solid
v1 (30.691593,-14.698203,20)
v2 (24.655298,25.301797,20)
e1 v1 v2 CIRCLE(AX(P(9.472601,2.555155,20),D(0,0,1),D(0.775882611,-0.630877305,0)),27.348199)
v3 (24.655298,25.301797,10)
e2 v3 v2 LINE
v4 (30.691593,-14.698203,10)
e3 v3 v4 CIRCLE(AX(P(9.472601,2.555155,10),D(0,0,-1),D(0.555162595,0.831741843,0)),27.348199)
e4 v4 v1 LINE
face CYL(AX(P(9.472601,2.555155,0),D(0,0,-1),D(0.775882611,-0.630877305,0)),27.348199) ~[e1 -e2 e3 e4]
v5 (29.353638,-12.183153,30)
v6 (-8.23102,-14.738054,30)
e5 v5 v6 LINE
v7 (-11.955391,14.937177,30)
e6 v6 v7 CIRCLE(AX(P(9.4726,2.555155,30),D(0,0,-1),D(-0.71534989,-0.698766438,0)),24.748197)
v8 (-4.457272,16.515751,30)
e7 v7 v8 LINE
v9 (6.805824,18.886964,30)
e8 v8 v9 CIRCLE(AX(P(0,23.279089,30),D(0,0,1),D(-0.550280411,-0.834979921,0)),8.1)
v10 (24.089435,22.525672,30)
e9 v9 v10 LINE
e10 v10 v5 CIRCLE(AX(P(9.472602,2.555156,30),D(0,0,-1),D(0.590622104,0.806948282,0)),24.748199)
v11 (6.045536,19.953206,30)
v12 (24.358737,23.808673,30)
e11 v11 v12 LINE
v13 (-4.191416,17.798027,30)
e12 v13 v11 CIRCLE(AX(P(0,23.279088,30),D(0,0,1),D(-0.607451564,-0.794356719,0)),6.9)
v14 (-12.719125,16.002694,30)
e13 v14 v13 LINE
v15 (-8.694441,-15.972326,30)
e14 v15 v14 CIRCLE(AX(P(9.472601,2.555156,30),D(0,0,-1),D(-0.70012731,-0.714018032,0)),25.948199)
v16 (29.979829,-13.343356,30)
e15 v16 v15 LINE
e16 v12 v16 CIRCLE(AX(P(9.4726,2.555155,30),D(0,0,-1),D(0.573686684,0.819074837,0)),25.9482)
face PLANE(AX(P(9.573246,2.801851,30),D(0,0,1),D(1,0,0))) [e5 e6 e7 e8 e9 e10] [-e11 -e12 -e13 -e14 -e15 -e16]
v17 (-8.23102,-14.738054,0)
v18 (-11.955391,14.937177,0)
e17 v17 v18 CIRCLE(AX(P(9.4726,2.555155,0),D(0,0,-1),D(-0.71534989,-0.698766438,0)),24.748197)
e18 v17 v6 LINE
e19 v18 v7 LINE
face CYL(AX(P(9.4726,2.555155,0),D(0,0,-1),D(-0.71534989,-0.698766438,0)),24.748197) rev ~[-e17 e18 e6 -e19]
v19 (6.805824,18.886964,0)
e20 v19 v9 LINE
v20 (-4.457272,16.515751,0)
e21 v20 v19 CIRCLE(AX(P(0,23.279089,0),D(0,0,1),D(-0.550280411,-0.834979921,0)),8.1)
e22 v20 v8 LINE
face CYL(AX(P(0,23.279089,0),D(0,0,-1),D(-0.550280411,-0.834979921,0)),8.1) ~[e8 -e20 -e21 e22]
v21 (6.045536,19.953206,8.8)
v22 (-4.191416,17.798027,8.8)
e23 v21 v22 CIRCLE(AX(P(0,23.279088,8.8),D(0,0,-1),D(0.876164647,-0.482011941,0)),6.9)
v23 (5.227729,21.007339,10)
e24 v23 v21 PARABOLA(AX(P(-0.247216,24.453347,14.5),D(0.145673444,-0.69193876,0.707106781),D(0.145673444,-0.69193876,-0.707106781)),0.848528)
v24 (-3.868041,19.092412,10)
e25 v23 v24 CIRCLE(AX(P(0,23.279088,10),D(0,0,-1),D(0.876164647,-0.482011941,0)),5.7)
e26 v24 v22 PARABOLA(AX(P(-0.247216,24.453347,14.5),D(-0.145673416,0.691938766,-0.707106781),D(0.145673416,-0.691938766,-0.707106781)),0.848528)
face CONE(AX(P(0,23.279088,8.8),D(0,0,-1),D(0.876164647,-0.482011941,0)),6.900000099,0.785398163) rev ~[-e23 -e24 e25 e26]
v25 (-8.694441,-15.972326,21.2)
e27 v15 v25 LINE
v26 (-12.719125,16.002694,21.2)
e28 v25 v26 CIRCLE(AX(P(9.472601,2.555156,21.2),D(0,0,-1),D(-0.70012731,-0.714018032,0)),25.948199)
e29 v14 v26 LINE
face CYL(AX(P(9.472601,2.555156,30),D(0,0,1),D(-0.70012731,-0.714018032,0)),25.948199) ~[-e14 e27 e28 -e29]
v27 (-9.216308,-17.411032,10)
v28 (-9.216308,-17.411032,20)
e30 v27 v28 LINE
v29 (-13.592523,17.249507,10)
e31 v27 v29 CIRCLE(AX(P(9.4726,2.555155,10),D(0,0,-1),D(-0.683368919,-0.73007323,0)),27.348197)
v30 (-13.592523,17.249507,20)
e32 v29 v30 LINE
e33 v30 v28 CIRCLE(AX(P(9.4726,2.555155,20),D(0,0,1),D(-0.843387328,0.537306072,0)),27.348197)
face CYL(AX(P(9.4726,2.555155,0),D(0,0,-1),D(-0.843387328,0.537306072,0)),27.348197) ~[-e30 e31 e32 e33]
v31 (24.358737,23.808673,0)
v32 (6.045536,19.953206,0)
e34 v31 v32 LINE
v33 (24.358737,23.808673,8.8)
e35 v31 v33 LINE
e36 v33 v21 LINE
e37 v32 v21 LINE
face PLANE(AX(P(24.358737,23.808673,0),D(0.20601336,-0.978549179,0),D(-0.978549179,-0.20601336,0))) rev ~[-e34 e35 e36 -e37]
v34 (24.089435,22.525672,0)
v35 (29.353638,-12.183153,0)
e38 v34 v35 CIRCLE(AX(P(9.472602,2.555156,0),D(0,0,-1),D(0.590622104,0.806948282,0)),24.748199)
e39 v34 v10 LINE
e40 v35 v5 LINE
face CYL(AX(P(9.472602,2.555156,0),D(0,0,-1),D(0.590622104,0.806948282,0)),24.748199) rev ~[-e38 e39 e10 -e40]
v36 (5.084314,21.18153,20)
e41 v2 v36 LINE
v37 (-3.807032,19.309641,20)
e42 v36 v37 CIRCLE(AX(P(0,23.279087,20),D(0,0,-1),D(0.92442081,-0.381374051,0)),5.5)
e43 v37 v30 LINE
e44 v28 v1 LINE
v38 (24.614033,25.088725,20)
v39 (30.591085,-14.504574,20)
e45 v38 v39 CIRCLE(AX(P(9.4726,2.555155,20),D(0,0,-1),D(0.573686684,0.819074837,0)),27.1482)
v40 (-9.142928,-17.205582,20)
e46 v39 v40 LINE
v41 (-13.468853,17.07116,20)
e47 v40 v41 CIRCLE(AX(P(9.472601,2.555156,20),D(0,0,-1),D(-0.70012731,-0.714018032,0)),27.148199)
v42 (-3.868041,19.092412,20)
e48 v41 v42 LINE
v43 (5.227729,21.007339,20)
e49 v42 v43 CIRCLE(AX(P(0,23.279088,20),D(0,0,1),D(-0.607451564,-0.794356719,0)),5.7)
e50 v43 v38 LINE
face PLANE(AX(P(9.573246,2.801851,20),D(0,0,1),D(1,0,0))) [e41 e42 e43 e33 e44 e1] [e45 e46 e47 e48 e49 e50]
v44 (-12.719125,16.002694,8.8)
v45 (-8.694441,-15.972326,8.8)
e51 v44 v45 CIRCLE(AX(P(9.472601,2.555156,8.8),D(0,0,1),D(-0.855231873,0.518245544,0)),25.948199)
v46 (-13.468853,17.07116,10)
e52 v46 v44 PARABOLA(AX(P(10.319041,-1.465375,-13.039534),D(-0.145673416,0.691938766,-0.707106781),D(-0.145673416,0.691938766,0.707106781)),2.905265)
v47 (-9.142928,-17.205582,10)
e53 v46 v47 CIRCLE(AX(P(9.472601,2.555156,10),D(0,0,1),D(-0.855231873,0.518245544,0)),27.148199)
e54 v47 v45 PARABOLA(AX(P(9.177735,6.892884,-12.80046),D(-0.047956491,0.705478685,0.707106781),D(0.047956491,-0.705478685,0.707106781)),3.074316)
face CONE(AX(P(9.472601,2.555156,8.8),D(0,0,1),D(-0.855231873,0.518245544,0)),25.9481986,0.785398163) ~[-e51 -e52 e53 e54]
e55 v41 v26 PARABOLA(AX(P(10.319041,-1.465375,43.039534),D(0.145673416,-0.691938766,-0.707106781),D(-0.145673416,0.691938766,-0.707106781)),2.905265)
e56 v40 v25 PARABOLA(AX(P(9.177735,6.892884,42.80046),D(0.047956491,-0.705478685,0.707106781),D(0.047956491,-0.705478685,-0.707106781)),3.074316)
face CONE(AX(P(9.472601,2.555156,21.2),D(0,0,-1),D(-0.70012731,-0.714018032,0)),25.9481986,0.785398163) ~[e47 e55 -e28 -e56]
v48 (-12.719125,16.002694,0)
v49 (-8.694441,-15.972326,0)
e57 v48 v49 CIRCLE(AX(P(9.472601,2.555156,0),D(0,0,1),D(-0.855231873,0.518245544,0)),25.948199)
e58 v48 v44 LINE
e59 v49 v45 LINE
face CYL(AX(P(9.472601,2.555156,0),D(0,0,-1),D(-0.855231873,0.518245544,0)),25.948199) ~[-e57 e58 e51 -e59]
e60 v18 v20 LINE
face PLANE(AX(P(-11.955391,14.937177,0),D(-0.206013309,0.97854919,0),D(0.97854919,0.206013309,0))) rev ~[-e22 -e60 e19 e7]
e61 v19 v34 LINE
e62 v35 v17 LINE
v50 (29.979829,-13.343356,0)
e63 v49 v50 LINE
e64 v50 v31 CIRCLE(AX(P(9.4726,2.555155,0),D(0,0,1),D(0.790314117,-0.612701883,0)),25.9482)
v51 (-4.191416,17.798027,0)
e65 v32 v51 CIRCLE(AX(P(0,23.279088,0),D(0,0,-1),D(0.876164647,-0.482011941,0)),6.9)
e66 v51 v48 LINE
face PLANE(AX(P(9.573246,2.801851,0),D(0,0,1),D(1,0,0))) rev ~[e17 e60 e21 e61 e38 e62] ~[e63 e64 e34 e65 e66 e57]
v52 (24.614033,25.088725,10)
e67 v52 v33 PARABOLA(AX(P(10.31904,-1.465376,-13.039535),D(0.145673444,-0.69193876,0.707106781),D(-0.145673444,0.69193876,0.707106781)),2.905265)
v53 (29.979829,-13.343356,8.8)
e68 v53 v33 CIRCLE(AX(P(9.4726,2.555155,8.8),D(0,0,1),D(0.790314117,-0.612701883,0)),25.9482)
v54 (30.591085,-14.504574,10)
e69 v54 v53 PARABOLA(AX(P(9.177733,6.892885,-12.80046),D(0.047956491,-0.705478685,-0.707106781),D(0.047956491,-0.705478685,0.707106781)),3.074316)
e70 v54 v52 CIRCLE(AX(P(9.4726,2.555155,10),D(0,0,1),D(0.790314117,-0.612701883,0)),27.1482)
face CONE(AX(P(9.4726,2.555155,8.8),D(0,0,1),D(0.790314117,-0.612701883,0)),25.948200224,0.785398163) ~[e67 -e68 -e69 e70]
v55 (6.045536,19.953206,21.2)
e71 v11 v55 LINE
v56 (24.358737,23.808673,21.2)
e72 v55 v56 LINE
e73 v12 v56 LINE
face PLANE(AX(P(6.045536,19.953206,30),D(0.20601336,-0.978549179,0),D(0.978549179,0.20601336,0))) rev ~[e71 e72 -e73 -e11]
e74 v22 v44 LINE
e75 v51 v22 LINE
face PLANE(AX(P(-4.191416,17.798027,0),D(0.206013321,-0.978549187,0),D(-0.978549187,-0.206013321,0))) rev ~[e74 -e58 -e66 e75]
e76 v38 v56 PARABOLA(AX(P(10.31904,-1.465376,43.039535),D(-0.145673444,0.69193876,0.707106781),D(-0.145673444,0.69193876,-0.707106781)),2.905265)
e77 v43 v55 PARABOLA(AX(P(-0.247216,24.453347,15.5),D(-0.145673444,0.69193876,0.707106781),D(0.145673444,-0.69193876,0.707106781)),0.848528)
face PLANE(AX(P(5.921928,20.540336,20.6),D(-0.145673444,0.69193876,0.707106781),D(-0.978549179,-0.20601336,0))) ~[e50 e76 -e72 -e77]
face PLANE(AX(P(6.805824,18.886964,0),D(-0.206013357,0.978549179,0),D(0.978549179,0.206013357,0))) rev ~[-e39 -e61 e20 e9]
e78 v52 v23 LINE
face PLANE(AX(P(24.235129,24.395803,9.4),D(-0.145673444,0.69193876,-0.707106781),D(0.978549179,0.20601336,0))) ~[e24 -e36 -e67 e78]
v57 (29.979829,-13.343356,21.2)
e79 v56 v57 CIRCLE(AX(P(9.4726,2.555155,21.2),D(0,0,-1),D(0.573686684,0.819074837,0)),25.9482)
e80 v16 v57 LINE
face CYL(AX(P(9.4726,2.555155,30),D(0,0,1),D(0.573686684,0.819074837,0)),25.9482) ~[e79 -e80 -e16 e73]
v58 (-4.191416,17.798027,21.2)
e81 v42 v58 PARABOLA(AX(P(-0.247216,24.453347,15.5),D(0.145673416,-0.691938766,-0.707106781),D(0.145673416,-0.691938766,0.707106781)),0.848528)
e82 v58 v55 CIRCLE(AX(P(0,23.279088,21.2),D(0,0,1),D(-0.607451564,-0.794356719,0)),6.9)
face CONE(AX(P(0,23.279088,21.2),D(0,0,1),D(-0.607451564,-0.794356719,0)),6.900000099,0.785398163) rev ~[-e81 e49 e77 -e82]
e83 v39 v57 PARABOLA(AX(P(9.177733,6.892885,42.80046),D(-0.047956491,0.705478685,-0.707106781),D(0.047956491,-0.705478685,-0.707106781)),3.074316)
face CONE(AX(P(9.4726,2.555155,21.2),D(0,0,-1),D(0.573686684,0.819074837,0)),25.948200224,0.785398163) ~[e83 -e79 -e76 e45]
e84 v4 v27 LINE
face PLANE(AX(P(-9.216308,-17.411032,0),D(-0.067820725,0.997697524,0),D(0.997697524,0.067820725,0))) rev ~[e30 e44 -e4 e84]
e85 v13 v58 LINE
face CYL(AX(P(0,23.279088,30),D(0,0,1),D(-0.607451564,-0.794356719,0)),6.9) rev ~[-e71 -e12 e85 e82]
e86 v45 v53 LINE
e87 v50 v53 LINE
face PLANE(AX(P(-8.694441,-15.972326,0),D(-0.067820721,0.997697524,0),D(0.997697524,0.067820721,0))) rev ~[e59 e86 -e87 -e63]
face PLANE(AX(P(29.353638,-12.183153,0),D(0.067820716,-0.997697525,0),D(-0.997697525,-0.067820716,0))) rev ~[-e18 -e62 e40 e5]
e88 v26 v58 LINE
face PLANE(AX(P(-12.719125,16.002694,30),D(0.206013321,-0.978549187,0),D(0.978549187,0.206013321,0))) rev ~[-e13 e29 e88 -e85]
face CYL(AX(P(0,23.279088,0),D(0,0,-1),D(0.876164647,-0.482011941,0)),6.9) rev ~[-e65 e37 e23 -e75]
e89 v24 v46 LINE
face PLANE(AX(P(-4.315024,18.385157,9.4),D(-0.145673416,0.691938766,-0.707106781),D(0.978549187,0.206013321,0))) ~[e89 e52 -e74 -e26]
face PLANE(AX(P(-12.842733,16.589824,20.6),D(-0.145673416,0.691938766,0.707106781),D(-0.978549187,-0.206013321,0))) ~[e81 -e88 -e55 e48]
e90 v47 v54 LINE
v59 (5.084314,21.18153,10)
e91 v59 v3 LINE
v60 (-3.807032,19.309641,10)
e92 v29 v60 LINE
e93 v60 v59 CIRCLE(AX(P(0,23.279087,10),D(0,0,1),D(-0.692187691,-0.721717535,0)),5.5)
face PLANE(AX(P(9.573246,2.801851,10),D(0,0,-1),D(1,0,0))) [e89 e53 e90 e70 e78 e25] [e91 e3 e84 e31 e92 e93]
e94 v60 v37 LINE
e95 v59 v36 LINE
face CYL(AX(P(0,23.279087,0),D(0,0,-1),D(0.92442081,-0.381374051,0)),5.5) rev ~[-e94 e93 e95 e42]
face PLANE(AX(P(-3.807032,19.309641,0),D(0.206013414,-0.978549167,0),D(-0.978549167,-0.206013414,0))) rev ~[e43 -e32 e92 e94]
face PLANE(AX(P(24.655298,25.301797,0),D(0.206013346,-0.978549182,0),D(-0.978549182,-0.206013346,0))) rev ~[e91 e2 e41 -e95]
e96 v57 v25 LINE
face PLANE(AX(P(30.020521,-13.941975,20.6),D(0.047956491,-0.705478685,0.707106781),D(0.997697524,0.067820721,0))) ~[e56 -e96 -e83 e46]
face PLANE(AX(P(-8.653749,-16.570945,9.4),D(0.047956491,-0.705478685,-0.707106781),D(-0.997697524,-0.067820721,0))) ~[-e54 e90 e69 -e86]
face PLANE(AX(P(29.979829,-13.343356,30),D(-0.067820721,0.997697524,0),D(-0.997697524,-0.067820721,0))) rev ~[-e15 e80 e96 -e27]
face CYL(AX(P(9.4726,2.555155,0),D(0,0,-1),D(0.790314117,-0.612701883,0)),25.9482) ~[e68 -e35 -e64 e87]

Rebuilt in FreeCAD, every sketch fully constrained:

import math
import FreeCAD as App
import Part
import Sketcher


def edges_at(feature, points):
    """Names of the edges that pass closest to the given points."""
    edges = feature.Shape.Edges
    near = lambda p: min(range(len(edges)), key=lambda i: edges[i].distToShape(Part.Vertex(*p))[0])
    return sorted({f"Edge{near(p) + 1}" for p in points})

doc = App.newDocument("Part")
body = doc.addObject("PartDesign::Body", "Body")

# Sketch on XY plane
sketch1 = doc.addObject("Sketcher::SketchObject", "Sketch")
body.addObject(sketch1)
sketch1.AttachmentSupport = (doc.XY_Plane, [""])
sketch1.MapMode = "FlatFace"
sketch1.addGeometry([
    Part.LineSegment(App.Vector(-9, -17, 0), App.Vector(31, -15, 0)),  # 0
    Part.ArcOfCircle(Part.Circle(App.Vector(9, 3, 0), App.Vector(0, 0, 1), 27), math.radians(-39), math.radians(56)),  # 1
    Part.LineSegment(App.Vector(25, 25, 0), App.Vector(5, 21, 0)),  # 2
    Part.ArcOfCircle(Part.Circle(App.Vector(0, 23, 0), App.Vector(0, 0, 1), 5), math.radians(-134), math.radians(-22)),  # 3
    Part.LineSegment(App.Vector(-4, 19, 0), App.Vector(-14, 17, 0)),  # 4
    Part.ArcOfCircle(Part.Circle(App.Vector(9, 3, 0), App.Vector(0, 0, 1), 27), math.radians(147), math.radians(227)),  # 5
    Part.LineSegment(App.Vector(29, -12, 0), App.Vector(-8, -15, 0)),  # 6
    Part.ArcOfCircle(Part.Circle(App.Vector(9, 3, 0), App.Vector(0, 0, 1), 25), math.radians(150), math.radians(224)),  # 7
    Part.LineSegment(App.Vector(-12, 15, 0), App.Vector(-4, 17, 0)),  # 8
    Part.ArcOfCircle(Part.Circle(App.Vector(0, 23, 0), App.Vector(0, 0, 1), 8), math.radians(-123), math.radians(-33)),  # 9
    Part.LineSegment(App.Vector(7, 19, 0), App.Vector(24, 23, 0)),  # 10
    Part.ArcOfCircle(Part.Circle(App.Vector(9, 3, 0), App.Vector(0, 0, 1), 25), math.radians(-37), math.radians(54)),  # 11
], False)
sketch1.addConstraint([
    Sketcher.Constraint("Coincident", 0, 2, 1, 1),
    Sketcher.Constraint("Coincident", 1, 2, 2, 1),
    Sketcher.Constraint("Coincident", 2, 2, 3, 2),
    Sketcher.Constraint("Coincident", 3, 1, 4, 1),
    Sketcher.Constraint("Coincident", 4, 2, 5, 1),
    Sketcher.Constraint("Coincident", 5, 2, 0, 1),
    Sketcher.Constraint("Coincident", 6, 2, 7, 2),
    Sketcher.Constraint("Coincident", 7, 1, 8, 1),
    Sketcher.Constraint("Coincident", 8, 2, 9, 1),
    Sketcher.Constraint("Coincident", 9, 2, 10, 1),
    Sketcher.Constraint("Coincident", 10, 2, 11, 2),
    Sketcher.Constraint("Coincident", 11, 1, 6, 1),
    Sketcher.Constraint("Coincident", 5, 3, 1, 3),
    Sketcher.Constraint("Coincident", 7, 3, 1, 3),
    Sketcher.Constraint("Coincident", 9, 3, 3, 3),
    Sketcher.Constraint("Coincident", 11, 3, 1, 3),
    Sketcher.Constraint("Equal", 7, 11),
    Sketcher.Constraint("PointOnObject", 3, 3, -2),
    Sketcher.Constraint("Parallel", 2, 4),
    Sketcher.Constraint("Parallel", 0, 6),
    Sketcher.Constraint("Parallel", 4, 8),
    Sketcher.Constraint("Parallel", 8, 10),
    Sketcher.Constraint("Radius", 3, 5.5),
    Sketcher.Constraint("Radius", 9, 8.1),
    Sketcher.Constraint("Distance", 0, 40.0),
    Sketcher.Constraint("Distance", 2, 20.0),
    Sketcher.Constraint("Distance", 4, 9.999999),
    Sketcher.Constraint("Radius", 1, 27.348199),
    Sketcher.Constraint("Radius", 11, 24.748199),
    Sketcher.Constraint("Radius", 5, 27.348197),
    Sketcher.Constraint("DistanceX", -1, 1, 1, 3, 9.472601),
    Sketcher.Constraint("DistanceX", -1, 1, 1, 2, 24.655298),
    Sketcher.Constraint("DistanceY", -1, 1, 9, 3, 23.279089),
    Sketcher.Constraint("DistanceY", -1, 1, 2, 2, 21.18153),
    Sketcher.Constraint("DistanceX", 5, 2, -1, 1, 9.216308),
    Sketcher.Constraint("DistanceX", 6, 2, -1, 1, 8.23102),
    Sketcher.Constraint("DistanceX", 7, 1, -1, 1, 11.955391),
    Sketcher.Constraint("DistanceY", -1, 1, 10, 2, 22.525672),
])
pad1 = doc.addObject("PartDesign::Pad", "Pad")
body.addObject(pad1)
pad1.Profile = sketch1
pad1.Length = 30

# Sketch on XY plane
sketch2 = doc.addObject("Sketcher::SketchObject", "Sketch001")
body.addObject(sketch2)
sketch2.AttachmentSupport = (doc.XY_Plane, [""])
sketch2.MapMode = "FlatFace"
sketch2.addGeometry([
    Part.LineSegment(App.Vector(31, -15, 0), App.Vector(-9, -17, 0)),  # 0
    Part.ArcOfCircle(Part.Circle(App.Vector(9, 3, 0), App.Vector(0, 0, 1), 27), math.radians(147), math.radians(227)),  # 1
    Part.LineSegment(App.Vector(-14, 17, 0), App.Vector(-4, 19, 0)),  # 2
    Part.ArcOfCircle(Part.Circle(App.Vector(0, 23, 0), App.Vector(0, 0, 1), 5), math.radians(-134), math.radians(-22)),  # 3
    Part.LineSegment(App.Vector(5, 21, 0), App.Vector(25, 25, 0)),  # 4
    Part.ArcOfCircle(Part.Circle(App.Vector(9, 3, 0), App.Vector(0, 0, 1), 27), math.radians(-39), math.radians(56)),  # 5
    Part.LineSegment(App.Vector(24, 24, 0), App.Vector(6, 20, 0)),  # 6
    Part.ArcOfCircle(Part.Circle(App.Vector(0, 23, 0), App.Vector(0, 0, 1), 7), math.radians(-127), math.radians(-29)),  # 7
    Part.LineSegment(App.Vector(-4, 18, 0), App.Vector(-13, 16, 0)),  # 8
    Part.ArcOfCircle(Part.Circle(App.Vector(9, 3, 0), App.Vector(0, 0, 1), 26), math.radians(149), math.radians(226)),  # 9
    Part.LineSegment(App.Vector(-9, -16, 0), App.Vector(30, -13, 0)),  # 10
    Part.ArcOfCircle(Part.Circle(App.Vector(9, 3, 0), App.Vector(0, 0, 1), 26), math.radians(-38), math.radians(55)),  # 11
], False)
sketch2.addConstraint([
    Sketcher.Constraint("Coincident", 0, 2, 1, 2),
    Sketcher.Constraint("Coincident", 1, 1, 2, 1),
    Sketcher.Constraint("Coincident", 2, 2, 3, 1),
    Sketcher.Constraint("Coincident", 3, 2, 4, 1),
    Sketcher.Constraint("Coincident", 4, 2, 5, 2),
    Sketcher.Constraint("Coincident", 5, 1, 0, 1),
    Sketcher.Constraint("Coincident", 6, 2, 7, 2),
    Sketcher.Constraint("Coincident", 7, 1, 8, 1),
    Sketcher.Constraint("Coincident", 8, 2, 9, 1),
    Sketcher.Constraint("Coincident", 9, 2, 10, 1),
    Sketcher.Constraint("Coincident", 10, 2, 11, 1),
    Sketcher.Constraint("Coincident", 11, 2, 6, 1),
    Sketcher.Constraint("Coincident", 5, 3, 1, 3),
    Sketcher.Constraint("Coincident", 7, 3, 3, 3),
    Sketcher.Constraint("Coincident", 9, 3, 1, 3),
    Sketcher.Constraint("Coincident", 11, 3, 1, 3),
    Sketcher.Constraint("Equal", 9, 11),
    Sketcher.Constraint("PointOnObject", 3, 3, -2),
    Sketcher.Constraint("Parallel", 2, 4),
    Sketcher.Constraint("Parallel", 4, 6),
    Sketcher.Constraint("Parallel", 6, 8),
    Sketcher.Constraint("Parallel", 0, 10),
    Sketcher.Constraint("Radius", 3, 5.5),
    Sketcher.Constraint("Radius", 7, 6.9),
    Sketcher.Constraint("Distance", 0, 40.0),
    Sketcher.Constraint("Distance", 2, 9.999999),
    Sketcher.Constraint("Distance", 4, 20.0),
    Sketcher.Constraint("Radius", 5, 27.348199),
    Sketcher.Constraint("Radius", 9, 25.948199),
    Sketcher.Constraint("Radius", 1, 27.348197),
    Sketcher.Constraint("DistanceX", -1, 1, 1, 3, 9.4726),
    Sketcher.Constraint("DistanceX", 3, 3, 4, 2, 24.655298),
    Sketcher.Constraint("DistanceX", 0, 2, 5, 1, 39.907901),
    Sketcher.Constraint("DistanceX", 1, 1, 8, 2, 0.873398),
    Sketcher.Constraint("DistanceX", 6, 2, 11, 2, 18.313201),
    Sketcher.Constraint("DistanceY", -1, 1, 7, 3, 23.279088),
    Sketcher.Constraint("DistanceY", 0, 2, -1, 1, 17.411032),
    Sketcher.Constraint("DistanceX", 9, 2, -1, 1, 8.694441),
])
pocket1 = doc.addObject("PartDesign::Pocket", "Pocket")
body.addObject(pocket1)
pocket1.Profile = sketch2
pocket1.Length = 10
pocket1.Reversed = True

# Sketch on XY plane
sketch3 = doc.addObject("Sketcher::SketchObject", "Sketch002")
body.addObject(sketch3)
sketch3.AttachmentSupport = (doc.XY_Plane, [""])
sketch3.MapMode = "FlatFace"
sketch3.AttachmentOffset = App.Placement(App.Vector(0, 0, 30), App.Rotation())
sketch3.addGeometry([
    Part.LineSegment(App.Vector(-4, 19, 0), App.Vector(-14, 17, 0)),  # 0
    Part.ArcOfCircle(Part.Circle(App.Vector(9, 3, 0), App.Vector(0, 0, 1), 27), math.radians(147), math.radians(227)),  # 1
    Part.LineSegment(App.Vector(-9, -17, 0), App.Vector(31, -15, 0)),  # 2
    Part.ArcOfCircle(Part.Circle(App.Vector(9, 3, 0), App.Vector(0, 0, 1), 27), math.radians(-39), math.radians(56)),  # 3
    Part.LineSegment(App.Vector(25, 25, 0), App.Vector(5, 21, 0)),  # 4
    Part.ArcOfCircle(Part.Circle(App.Vector(0, 23, 0), App.Vector(0, 0, 1), 5), math.radians(-134), math.radians(-22)),  # 5
    Part.LineSegment(App.Vector(30, -13, 0), App.Vector(-9, -16, 0)),  # 6
    Part.ArcOfCircle(Part.Circle(App.Vector(9, 3, 0), App.Vector(0, 0, 1), 26), math.radians(149), math.radians(226)),  # 7
    Part.LineSegment(App.Vector(-13, 16, 0), App.Vector(-4, 18, 0)),  # 8
    Part.ArcOfCircle(Part.Circle(App.Vector(0, 23, 0), App.Vector(0, 0, 1), 7), math.radians(-127), math.radians(-29)),  # 9
    Part.LineSegment(App.Vector(6, 20, 0), App.Vector(24, 24, 0)),  # 10
    Part.ArcOfCircle(Part.Circle(App.Vector(9, 3, 0), App.Vector(0, 0, 1), 26), math.radians(-38), math.radians(55)),  # 11
], False)
sketch3.addConstraint([
    Sketcher.Constraint("Coincident", 0, 2, 1, 1),
    Sketcher.Constraint("Coincident", 1, 2, 2, 1),
    Sketcher.Constraint("Coincident", 2, 2, 3, 1),
    Sketcher.Constraint("Coincident", 3, 2, 4, 1),
    Sketcher.Constraint("Coincident", 4, 2, 5, 2),
    Sketcher.Constraint("Coincident", 5, 1, 0, 1),
    Sketcher.Constraint("Coincident", 6, 2, 7, 2),
    Sketcher.Constraint("Coincident", 7, 1, 8, 1),
    Sketcher.Constraint("Coincident", 8, 2, 9, 1),
    Sketcher.Constraint("Coincident", 9, 2, 10, 1),
    Sketcher.Constraint("Coincident", 10, 2, 11, 2),
    Sketcher.Constraint("Coincident", 11, 1, 6, 1),
    Sketcher.Constraint("Coincident", 3, 3, 1, 3),
    Sketcher.Constraint("Coincident", 7, 3, 1, 3),
    Sketcher.Constraint("Coincident", 9, 3, 5, 3),
    Sketcher.Constraint("Coincident", 11, 3, 1, 3),
    Sketcher.Constraint("Equal", 7, 11),
    Sketcher.Constraint("PointOnObject", 5, 3, -2),
    Sketcher.Constraint("Parallel", 0, 4),
    Sketcher.Constraint("Parallel", 2, 6),
    Sketcher.Constraint("Parallel", 4, 8),
    Sketcher.Constraint("Parallel", 8, 10),
    Sketcher.Constraint("Radius", 5, 5.5),
    Sketcher.Constraint("Radius", 9, 6.9),
    Sketcher.Constraint("Distance", 0, 9.999999),
    Sketcher.Constraint("Distance", 2, 40.0),
    Sketcher.Constraint("Distance", 4, 20.0),
    Sketcher.Constraint("Radius", 3, 27.348199),
    Sketcher.Constraint("Radius", 7, 25.948199),
    Sketcher.Constraint("Radius", 1, 27.348197),
    Sketcher.Constraint("DistanceX", -1, 1, 1, 3, 9.4726),
    Sketcher.Constraint("DistanceX", -1, 1, 3, 2, 24.655298),
    Sketcher.Constraint("DistanceX", 1, 2, 2, 2, 39.907901),
    Sketcher.Constraint("DistanceX", 0, 2, 7, 1, 0.873398),
    Sketcher.Constraint("DistanceX", 9, 2, 10, 2, 18.313201),
    Sketcher.Constraint("DistanceY", -1, 1, 9, 3, 23.279088),
    Sketcher.Constraint("DistanceY", -1, 1, 4, 2, 21.18153),
    Sketcher.Constraint("DistanceX", 6, 2, -1, 1, 8.694441),
])
pocket2 = doc.addObject("PartDesign::Pocket", "Pocket001")
body.addObject(pocket2)
pocket2.Profile = sketch3
pocket2.Length = 10
doc.recompute()

chamfer = doc.addObject("PartDesign::Chamfer", "Chamfer")
body.addObject(chamfer)
chamfer.Base = (pocket2, edges_at(pocket2, [
    (-16.272, -0.685, 20),
    (-8.455, 16.9, 20),
    (1.421, 16.527, 20),
    (15.202, 21.881, 20),
    (35.129, 6.437, 20),
    (10.643, -14.658, 20),
    (15.202, 21.881, 10),
    (35.129, 6.437, 10),
    (1.421, 16.527, 10),
    (-8.455, 16.9, 10),
    (-16.272, -0.685, 10),
    (10.643, -14.658, 10),
]))
chamfer.Size = 1.2

doc.recompute()
